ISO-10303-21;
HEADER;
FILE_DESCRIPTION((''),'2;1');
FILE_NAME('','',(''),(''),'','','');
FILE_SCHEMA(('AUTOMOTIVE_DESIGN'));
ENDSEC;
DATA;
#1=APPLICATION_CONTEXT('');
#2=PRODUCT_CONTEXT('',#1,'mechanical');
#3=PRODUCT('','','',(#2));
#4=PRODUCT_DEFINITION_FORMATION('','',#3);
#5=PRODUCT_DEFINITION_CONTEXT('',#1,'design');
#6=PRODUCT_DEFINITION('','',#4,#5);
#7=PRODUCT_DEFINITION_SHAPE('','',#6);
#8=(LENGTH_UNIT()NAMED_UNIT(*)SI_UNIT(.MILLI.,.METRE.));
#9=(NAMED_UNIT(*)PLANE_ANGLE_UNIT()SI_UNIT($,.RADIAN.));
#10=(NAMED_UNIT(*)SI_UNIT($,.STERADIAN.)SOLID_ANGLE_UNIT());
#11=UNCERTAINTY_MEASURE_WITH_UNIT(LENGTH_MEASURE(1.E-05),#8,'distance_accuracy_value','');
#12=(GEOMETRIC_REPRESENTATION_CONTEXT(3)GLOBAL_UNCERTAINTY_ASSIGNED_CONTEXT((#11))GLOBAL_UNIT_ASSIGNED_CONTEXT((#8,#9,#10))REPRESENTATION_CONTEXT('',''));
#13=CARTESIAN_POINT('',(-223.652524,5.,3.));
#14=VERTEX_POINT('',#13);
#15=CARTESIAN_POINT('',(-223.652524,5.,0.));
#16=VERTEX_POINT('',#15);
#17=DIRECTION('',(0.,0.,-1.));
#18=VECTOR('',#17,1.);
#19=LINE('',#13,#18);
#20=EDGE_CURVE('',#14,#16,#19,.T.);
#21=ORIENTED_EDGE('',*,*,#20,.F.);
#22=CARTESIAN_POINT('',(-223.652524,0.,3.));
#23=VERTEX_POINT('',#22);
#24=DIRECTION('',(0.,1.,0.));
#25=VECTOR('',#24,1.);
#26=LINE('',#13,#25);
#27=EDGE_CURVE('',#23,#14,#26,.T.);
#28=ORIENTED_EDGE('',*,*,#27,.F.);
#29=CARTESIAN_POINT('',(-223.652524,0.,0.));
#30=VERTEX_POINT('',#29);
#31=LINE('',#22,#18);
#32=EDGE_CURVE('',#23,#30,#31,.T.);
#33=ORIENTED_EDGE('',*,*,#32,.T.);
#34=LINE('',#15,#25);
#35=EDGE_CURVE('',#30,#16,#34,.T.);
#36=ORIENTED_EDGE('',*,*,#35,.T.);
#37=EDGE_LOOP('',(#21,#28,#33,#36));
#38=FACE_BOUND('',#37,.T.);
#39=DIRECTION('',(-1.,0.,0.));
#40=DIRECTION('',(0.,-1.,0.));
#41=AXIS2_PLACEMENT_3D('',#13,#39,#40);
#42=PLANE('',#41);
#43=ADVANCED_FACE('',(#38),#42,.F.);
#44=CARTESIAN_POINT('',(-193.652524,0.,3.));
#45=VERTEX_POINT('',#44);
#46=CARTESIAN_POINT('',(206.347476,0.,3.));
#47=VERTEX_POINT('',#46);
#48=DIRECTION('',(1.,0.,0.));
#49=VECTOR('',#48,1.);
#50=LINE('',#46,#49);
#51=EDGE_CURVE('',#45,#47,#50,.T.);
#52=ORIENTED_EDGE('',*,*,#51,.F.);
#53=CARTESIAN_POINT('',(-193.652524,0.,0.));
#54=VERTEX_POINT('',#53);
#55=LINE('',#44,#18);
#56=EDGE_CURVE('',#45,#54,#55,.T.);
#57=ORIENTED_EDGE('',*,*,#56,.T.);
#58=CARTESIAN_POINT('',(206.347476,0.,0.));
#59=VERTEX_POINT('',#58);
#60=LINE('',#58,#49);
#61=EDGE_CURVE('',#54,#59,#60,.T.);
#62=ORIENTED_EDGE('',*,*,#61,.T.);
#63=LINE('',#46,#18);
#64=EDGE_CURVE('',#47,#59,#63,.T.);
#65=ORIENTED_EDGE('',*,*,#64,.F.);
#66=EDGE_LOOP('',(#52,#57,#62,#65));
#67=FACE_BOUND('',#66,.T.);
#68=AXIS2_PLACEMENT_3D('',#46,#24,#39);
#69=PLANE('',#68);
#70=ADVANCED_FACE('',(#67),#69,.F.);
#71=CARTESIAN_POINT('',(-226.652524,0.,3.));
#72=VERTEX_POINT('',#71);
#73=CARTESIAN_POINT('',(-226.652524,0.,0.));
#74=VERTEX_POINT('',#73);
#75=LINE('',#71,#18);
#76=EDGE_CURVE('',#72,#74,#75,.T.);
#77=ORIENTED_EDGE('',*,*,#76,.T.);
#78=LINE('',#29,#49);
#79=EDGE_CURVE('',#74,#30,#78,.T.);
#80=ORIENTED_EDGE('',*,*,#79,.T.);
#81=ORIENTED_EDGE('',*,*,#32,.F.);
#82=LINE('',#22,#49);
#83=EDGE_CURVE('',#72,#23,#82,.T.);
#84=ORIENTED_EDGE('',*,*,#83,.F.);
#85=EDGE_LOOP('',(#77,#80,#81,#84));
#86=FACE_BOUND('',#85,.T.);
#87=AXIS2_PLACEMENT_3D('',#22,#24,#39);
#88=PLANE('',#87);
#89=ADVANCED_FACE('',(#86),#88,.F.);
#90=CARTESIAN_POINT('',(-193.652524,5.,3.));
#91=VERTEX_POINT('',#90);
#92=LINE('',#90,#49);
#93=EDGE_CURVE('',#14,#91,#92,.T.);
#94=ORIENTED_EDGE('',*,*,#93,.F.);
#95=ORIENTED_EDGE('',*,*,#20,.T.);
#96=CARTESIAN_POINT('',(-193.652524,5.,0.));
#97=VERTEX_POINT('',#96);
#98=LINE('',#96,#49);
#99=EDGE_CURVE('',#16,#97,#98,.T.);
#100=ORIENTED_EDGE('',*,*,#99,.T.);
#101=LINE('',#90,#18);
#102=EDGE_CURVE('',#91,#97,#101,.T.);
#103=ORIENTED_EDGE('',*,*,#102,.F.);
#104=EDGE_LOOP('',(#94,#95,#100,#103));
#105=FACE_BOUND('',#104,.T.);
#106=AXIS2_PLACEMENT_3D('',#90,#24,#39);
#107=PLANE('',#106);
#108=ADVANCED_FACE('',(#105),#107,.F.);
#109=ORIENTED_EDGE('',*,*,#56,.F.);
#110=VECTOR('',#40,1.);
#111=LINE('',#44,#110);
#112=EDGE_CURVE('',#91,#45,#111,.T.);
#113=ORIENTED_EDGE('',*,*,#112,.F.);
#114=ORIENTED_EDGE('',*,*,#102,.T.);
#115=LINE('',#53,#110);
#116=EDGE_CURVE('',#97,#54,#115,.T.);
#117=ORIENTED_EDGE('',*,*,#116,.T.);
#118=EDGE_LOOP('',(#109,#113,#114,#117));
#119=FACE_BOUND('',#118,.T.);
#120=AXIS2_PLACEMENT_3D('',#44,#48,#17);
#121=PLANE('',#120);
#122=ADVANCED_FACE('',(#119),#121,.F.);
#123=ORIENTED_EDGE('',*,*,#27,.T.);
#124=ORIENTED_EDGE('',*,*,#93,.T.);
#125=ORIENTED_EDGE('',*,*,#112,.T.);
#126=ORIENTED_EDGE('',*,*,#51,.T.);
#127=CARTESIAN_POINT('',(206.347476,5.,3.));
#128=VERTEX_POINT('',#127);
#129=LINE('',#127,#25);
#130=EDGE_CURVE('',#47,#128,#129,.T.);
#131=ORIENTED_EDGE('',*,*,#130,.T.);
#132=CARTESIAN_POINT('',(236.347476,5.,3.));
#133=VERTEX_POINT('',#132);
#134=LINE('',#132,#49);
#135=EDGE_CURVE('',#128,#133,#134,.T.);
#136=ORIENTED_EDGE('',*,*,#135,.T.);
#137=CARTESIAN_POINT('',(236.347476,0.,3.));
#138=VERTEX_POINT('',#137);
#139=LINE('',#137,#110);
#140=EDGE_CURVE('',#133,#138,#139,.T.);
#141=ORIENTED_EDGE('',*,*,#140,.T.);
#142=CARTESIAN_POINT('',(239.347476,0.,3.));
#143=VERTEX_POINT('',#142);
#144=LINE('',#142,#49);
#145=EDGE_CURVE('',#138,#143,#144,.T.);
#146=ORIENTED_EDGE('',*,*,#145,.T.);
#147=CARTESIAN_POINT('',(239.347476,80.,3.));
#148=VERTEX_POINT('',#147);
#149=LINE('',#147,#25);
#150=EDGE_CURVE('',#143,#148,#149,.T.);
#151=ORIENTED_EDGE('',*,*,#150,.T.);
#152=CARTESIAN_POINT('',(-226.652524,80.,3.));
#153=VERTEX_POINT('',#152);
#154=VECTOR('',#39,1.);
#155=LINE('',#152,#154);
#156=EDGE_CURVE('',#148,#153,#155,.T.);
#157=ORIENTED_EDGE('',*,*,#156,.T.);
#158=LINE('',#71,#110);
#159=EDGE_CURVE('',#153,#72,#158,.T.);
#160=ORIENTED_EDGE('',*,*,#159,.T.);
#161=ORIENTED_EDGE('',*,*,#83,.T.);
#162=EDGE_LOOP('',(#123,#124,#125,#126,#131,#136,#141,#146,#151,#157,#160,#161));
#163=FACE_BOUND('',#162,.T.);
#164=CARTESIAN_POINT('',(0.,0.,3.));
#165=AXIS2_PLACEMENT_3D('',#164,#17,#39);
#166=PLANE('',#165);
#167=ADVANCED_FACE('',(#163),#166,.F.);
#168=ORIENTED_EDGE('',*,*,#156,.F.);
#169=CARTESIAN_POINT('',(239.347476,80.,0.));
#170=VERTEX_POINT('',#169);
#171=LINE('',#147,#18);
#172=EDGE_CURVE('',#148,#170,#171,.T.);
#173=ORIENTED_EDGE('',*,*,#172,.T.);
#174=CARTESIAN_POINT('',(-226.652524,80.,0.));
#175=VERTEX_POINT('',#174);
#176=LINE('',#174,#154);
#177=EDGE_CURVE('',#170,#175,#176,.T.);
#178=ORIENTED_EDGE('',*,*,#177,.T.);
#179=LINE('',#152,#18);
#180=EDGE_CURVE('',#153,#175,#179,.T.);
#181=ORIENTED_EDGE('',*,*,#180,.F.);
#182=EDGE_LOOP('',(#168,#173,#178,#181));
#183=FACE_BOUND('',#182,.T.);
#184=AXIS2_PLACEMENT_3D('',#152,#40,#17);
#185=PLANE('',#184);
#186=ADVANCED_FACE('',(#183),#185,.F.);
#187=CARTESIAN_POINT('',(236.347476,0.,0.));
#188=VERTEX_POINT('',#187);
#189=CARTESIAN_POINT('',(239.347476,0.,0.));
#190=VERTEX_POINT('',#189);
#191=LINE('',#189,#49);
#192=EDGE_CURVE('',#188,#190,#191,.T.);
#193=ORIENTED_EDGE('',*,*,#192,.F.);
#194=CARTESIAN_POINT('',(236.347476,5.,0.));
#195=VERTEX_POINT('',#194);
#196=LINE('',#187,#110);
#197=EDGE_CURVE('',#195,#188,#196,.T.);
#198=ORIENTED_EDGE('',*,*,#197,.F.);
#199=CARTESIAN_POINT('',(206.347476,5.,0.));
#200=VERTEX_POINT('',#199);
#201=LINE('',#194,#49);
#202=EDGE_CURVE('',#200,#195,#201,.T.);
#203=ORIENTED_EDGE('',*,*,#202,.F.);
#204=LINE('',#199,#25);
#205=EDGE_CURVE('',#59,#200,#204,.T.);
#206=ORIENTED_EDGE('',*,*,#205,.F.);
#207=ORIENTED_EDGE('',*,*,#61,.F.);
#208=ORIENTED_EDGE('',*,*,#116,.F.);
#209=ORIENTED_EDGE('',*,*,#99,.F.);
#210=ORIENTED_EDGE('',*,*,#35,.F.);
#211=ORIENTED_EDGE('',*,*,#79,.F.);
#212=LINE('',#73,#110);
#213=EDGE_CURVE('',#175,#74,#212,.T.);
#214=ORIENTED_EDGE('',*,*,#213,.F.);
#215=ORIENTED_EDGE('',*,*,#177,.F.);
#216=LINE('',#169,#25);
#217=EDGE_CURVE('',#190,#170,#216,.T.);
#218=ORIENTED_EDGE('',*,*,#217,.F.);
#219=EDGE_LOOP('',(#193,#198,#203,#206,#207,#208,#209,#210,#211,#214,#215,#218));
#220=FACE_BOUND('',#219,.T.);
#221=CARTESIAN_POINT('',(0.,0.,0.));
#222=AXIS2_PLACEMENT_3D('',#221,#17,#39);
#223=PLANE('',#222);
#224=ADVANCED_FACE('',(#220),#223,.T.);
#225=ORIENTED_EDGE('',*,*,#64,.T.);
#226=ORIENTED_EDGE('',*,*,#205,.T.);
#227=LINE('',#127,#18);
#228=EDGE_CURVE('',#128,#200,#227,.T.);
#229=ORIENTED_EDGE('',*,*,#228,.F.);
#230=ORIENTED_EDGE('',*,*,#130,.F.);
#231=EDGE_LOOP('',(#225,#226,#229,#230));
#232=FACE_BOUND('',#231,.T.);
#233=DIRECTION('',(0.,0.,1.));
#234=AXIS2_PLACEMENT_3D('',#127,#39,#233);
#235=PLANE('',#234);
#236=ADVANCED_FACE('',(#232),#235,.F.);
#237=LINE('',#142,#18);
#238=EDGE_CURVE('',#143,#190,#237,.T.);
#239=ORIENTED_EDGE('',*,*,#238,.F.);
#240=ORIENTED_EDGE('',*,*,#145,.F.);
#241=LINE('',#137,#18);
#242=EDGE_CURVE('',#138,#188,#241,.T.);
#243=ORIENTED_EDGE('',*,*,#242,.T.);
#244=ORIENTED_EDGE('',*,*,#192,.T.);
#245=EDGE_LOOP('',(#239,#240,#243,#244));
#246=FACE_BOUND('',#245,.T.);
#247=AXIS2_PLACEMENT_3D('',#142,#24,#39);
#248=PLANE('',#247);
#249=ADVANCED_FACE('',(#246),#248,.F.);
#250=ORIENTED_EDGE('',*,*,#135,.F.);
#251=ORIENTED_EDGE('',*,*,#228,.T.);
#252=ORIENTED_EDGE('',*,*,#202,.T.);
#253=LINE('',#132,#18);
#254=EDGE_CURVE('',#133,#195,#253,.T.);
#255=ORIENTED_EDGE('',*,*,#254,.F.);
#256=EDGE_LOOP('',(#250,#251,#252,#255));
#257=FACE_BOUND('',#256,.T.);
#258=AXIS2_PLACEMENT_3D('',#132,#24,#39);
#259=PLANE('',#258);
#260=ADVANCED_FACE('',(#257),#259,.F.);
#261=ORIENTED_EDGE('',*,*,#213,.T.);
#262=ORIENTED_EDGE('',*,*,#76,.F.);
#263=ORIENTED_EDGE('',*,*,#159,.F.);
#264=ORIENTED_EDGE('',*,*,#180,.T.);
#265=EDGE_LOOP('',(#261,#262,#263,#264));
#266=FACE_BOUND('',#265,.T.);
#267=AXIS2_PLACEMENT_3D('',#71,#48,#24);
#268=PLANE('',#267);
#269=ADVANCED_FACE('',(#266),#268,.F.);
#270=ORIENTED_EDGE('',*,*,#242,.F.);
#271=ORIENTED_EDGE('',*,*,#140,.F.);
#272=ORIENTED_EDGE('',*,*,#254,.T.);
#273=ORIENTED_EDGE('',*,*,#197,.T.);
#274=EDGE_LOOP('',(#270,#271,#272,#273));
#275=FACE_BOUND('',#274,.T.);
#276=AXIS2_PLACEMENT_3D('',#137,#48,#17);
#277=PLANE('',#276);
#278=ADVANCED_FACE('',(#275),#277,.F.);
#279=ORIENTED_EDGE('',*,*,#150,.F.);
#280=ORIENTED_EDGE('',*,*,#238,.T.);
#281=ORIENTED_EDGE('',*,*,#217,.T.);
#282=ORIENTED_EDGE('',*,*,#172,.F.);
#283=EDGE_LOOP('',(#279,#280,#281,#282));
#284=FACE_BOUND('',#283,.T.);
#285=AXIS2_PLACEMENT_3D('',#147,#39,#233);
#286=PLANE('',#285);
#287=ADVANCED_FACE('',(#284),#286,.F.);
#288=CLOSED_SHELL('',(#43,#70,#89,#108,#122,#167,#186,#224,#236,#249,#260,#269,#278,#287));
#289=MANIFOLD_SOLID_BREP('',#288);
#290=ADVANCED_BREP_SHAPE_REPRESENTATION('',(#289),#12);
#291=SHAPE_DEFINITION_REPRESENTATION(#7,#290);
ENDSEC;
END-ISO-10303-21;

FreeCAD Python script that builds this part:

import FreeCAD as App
import Part
import Sketcher
from FreeCAD import Vector
Q = App.Units.Quantity

doc = App.newDocument("Part")
params = doc.addObject("Spreadsheet::Sheet", "Params")
for row, (alias, value) in enumerate([
    ("sketch1_width", "3 mm"),
    ("sketch1_width2", "30 mm"),
    ("sketch1_width3", "400 mm"),
    ("sketch1_height", "80 mm"),
    ("sketch1_height2", "5 mm"),
    ("pad1_length", "3 mm"),
], start=1):
    params.set(f"A{row}", alias)
    params.set(f"B{row}", "=" + value)
    params.setAlias(f"B{row}", alias)

body = doc.addObject("PartDesign::Body", "Body")

# Sketch on XY plane
sketch1 = body.newObject("Sketcher::SketchObject", "Sketch")
sketch1.AttachmentSupport = (doc.getObject("XY_Plane"), [""])
sketch1.MapMode = "FlatFace"
sketch1.addGeometry([
    Part.LineSegment(Vector(-226.652524, 80, 0), Vector(-226.652524, 0, 0)),  # 0
    Part.LineSegment(Vector(-226.652524, 0, 0), Vector(-223.652524, 0, 0)),  # 1
    Part.LineSegment(Vector(-223.652524, 0, 0), Vector(-223.652524, 5, 0)),  # 2
    Part.LineSegment(Vector(-223.652524, 5, 0), Vector(-193.652524, 5, 0)),  # 3
    Part.LineSegment(Vector(-193.652524, 5, 0), Vector(-193.652524, 0, 0)),  # 4
    Part.LineSegment(Vector(-193.652524, 0, 0), Vector(206.347476, 0, 0)),  # 5
    Part.LineSegment(Vector(206.347476, 0, 0), Vector(206.347476, 5, 0)),  # 6
    Part.LineSegment(Vector(206.347476, 5, 0), Vector(236.347476, 5, 0)),  # 7
    Part.LineSegment(Vector(236.347476, 5, 0), Vector(236.347476, 0, 0)),  # 8
    Part.LineSegment(Vector(236.347476, 0, 0), Vector(239.347476, 0, 0)),  # 9
    Part.LineSegment(Vector(239.347476, 0, 0), Vector(239.347476, 80, 0)),  # 10
    Part.LineSegment(Vector(239.347476, 80, 0), Vector(-226.652524, 80, 0)),  # 11
], False)
sketch1.addConstraint([
    Sketcher.Constraint("Coincident", 0, 2, 1, 1),
    Sketcher.Constraint("Coincident", 1, 2, 2, 1),
    Sketcher.Constraint("Coincident", 2, 2, 3, 1),
    Sketcher.Constraint("Coincident", 3, 2, 4, 1),
    Sketcher.Constraint("Coincident", 4, 2, 5, 1),
    Sketcher.Constraint("Coincident", 5, 2, 6, 1),
    Sketcher.Constraint("Coincident", 6, 2, 7, 1),
    Sketcher.Constraint("Coincident", 7, 2, 8, 1),
    Sketcher.Constraint("Coincident", 8, 2, 9, 1),
    Sketcher.Constraint("Coincident", 9, 2, 10, 1),
    Sketcher.Constraint("Coincident", 10, 2, 11, 1),
    Sketcher.Constraint("Coincident", 11, 2, 0, 1),
    Sketcher.Constraint("Vertical", 0),
    Sketcher.Constraint("Horizontal", 1),
    Sketcher.Constraint("Vertical", 2),
    Sketcher.Constraint("Horizontal", 3),
    Sketcher.Constraint("Vertical", 4),
    Sketcher.Constraint("Horizontal", 5),
    Sketcher.Constraint("Vertical", 6),
    Sketcher.Constraint("Horizontal", 7),
    Sketcher.Constraint("Vertical", 8),
    Sketcher.Constraint("Horizontal", 9),
    Sketcher.Constraint("Vertical", 10),
    Sketcher.Constraint("Horizontal", 11),
    Sketcher.Constraint("PointOnObject", 0, 2, -1),
    Sketcher.Constraint("PointOnObject", 4, 2, -1),
    Sketcher.Constraint("PointOnObject", 8, 2, -1),
    Sketcher.Constraint("Horizontal", 3, 2, 6, 2),
    Sketcher.Constraint("Equal", 3, 7),
    Sketcher.Constraint("Equal", 1, 9),
    Sketcher.Constraint("DistanceX", 1, 1, 1, 2, Q("3 mm")),
    Sketcher.Constraint("DistanceX", 3, 1, 3, 2, Q("30 mm")),
    Sketcher.Constraint("DistanceX", 5, 1, 5, 2, Q("400 mm")),
    Sketcher.Constraint("DistanceY", 0, 2, 0, 1, Q("80 mm")),
    Sketcher.Constraint("DistanceY", 2, 1, 2, 2, Q("5 mm")),
    Sketcher.Constraint("DistanceX", 0, 2, -1, 1, Q("226.652524 mm")),
])
sketch1.setExpression("Constraints[30]", "Params.sketch1_width")
sketch1.setExpression("Constraints[31]", "Params.sketch1_width2")
sketch1.setExpression("Constraints[32]", "Params.sketch1_width3")
sketch1.setExpression("Constraints[33]", "Params.sketch1_height")
sketch1.setExpression("Constraints[34]", "Params.sketch1_height2")
pad1 = body.newObject("PartDesign::Pad", "Pad")
pad1.Profile = sketch1
pad1.setExpression("Length", "Params.pad1_length")

doc.recompute()
